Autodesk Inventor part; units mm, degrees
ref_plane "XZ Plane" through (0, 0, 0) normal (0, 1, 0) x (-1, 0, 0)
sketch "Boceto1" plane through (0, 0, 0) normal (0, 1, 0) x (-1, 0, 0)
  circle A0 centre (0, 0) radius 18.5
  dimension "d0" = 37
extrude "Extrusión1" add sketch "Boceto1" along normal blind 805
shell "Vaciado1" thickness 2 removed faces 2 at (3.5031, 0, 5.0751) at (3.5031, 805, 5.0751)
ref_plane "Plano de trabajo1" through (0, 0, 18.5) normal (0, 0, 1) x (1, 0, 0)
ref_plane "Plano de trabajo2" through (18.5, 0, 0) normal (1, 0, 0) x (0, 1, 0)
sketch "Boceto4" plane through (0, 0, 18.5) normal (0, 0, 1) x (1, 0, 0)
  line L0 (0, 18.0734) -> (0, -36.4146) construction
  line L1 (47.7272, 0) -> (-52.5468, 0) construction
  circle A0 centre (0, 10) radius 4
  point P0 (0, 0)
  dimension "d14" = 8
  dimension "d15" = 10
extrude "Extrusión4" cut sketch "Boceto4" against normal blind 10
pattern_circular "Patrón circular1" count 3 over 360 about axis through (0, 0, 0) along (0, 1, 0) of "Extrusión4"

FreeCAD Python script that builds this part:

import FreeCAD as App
import Part
import Sketcher
from FreeCAD import Vector
Q = App.Units.Quantity


def faces_at(feature, points):
    """Names of the faces that lie closest to the given points."""
    faces = feature.Shape.Faces
    near = lambda p: min(range(len(faces)), key=lambda i: faces[i].distToShape(Part.Vertex(*p))[0])
    return sorted({f"Face{near(p) + 1}" for p in points})

doc = App.newDocument("Part")
body = doc.addObject("PartDesign::Body", "Body")

# Sketch on XZ plane
sketch1 = body.newObject("Sketcher::SketchObject", "Sketch")
sketch1.AttachmentSupport = (doc.getObject("XZ_Plane"), [""])
sketch1.MapMode = "FlatFace"
sketch1.addGeometry(Part.Circle(Vector(0, 0, 0), Vector(0, 0, 1), 18.5), False)
sketch1.addConstraint(Sketcher.Constraint("Coincident", 0, 3, -1, 1))
sketch1.addConstraint(Sketcher.Constraint("Diameter", 0, Q("37 mm")))
pad1 = body.newObject("PartDesign::Pad", "Pad")
pad1.Profile = sketch1
pad1.Length = 805
pad1.Reversed = True
doc.recompute()

thickness = body.newObject("PartDesign::Thickness", "Thickness")
thickness.Base = (pad1, faces_at(pad1, [(3.503, 0, 5.075), (3.503, 805, 5.075)]))
thickness.Value = 2
thickness.Reversed = True
thickness.Join = "Intersection"

# Sketch on XY plane
sketch2 = body.newObject("Sketcher::SketchObject", "Sketch001")
sketch2.AttachmentSupport = (doc.getObject("XY_Plane"), [""])
sketch2.MapMode = "FlatFace"
sketch2.AttachmentOffset = App.Placement(Vector(0, 0, 18.5), App.Rotation())
sketch2.addGeometry(Part.Circle(Vector(0, 10, 0), Vector(0, 0, 1), 4), False)
sketch2.addConstraint(Sketcher.Constraint("PointOnObject", 0, 3, -2))
sketch2.addConstraint(Sketcher.Constraint("Diameter", 0, Q("8 mm")))
sketch2.addConstraint(Sketcher.Constraint("DistanceY", -1, 1, 0, 3, Q("10 mm")))
pocket1 = body.newObject("PartDesign::Pocket", "Pocket")
pocket1.Profile = sketch2
pocket1.Length = 10
doc.recompute()

polarpattern = body.newObject("PartDesign::PolarPattern", "PolarPattern")
polarpattern.Originals = [pocket1]
polarpattern.Axis = (doc.getObject("Y_Axis"), [""])
polarpattern.Angle = 360
polarpattern.Occurrences = 3
body.Tip = polarpattern

doc.recompute()
